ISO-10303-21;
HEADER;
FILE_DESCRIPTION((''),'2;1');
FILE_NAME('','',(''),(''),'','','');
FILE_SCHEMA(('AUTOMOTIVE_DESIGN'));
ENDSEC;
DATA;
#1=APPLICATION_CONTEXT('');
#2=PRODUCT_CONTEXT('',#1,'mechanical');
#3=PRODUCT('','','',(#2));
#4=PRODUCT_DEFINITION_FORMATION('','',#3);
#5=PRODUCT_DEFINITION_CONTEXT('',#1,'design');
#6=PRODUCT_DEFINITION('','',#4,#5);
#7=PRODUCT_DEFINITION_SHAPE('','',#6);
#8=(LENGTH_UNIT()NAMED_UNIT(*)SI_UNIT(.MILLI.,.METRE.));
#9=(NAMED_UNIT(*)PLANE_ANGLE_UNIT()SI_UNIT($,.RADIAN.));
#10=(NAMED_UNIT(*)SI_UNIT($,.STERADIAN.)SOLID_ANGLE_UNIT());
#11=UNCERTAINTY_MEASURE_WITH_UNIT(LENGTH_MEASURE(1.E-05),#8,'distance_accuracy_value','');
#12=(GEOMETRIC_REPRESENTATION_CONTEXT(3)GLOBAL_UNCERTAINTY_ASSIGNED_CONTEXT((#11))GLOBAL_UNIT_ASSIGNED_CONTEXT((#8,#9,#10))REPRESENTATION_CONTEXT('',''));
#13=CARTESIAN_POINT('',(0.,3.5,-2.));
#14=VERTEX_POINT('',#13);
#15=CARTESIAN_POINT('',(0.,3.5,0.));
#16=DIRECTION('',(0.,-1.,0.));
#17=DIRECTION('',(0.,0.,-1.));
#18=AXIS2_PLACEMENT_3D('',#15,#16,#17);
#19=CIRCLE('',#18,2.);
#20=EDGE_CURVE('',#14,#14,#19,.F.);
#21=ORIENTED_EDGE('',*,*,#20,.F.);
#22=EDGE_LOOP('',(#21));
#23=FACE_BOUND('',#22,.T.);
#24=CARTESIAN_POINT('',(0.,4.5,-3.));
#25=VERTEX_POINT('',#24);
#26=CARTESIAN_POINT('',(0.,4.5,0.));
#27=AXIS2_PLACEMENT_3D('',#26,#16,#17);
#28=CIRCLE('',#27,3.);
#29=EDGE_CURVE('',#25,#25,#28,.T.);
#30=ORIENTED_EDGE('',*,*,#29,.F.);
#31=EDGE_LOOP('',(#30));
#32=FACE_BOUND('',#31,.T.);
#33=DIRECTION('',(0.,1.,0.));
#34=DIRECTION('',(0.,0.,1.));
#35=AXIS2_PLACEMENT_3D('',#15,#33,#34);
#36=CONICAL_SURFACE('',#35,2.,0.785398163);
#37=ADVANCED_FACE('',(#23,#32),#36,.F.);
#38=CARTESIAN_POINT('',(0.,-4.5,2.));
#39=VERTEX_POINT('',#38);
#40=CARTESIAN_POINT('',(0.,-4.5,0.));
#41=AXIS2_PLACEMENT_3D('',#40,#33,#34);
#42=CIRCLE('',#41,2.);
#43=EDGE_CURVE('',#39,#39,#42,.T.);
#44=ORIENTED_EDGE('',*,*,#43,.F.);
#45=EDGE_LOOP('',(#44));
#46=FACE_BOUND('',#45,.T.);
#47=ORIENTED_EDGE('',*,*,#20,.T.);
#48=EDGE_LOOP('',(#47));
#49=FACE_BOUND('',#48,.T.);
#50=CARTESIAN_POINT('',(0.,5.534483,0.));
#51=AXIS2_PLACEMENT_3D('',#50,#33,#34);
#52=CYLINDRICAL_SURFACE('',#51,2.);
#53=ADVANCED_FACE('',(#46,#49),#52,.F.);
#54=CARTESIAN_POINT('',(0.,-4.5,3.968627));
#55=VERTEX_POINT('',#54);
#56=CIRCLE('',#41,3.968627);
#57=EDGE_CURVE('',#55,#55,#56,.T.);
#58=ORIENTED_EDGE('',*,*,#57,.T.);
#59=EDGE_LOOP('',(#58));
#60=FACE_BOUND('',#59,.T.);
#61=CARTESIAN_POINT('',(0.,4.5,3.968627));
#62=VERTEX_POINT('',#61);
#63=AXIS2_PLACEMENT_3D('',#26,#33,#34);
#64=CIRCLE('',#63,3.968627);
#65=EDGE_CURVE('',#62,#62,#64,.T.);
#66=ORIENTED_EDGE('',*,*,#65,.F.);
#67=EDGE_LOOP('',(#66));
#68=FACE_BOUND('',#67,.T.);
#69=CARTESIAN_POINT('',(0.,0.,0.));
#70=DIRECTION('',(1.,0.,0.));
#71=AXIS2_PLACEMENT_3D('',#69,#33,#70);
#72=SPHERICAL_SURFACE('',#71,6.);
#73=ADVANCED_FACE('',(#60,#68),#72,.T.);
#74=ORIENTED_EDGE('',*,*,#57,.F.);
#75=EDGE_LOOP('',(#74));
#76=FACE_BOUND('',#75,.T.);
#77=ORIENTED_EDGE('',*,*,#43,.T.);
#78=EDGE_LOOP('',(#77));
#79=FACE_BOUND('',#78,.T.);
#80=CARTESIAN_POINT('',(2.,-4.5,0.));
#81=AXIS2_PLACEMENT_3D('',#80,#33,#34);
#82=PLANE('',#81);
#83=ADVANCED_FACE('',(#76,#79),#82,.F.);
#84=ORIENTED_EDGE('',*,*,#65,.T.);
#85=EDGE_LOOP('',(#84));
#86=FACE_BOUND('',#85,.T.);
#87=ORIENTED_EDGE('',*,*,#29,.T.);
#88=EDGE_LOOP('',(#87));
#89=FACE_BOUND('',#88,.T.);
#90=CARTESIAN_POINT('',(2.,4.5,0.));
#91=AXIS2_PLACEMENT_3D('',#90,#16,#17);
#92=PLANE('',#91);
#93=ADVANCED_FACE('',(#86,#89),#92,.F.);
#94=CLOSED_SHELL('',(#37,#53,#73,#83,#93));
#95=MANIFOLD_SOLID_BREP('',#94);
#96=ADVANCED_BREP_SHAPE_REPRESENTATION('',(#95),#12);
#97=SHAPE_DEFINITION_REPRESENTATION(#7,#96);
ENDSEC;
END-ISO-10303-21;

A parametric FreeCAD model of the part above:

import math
import FreeCAD as App
import Part
import Sketcher

V = App.Vector


def edges_at(feature, points):
    """Names of the edges that pass closest to the given points."""
    edges = feature.Shape.Edges
    near = lambda p: min(range(len(edges)), key=lambda i: edges[i].distToShape(Part.Vertex(*p))[0])
    return sorted({f"Edge{near(p) + 1}" for p in points})

doc = App.newDocument("Part")
body = doc.addObject("PartDesign::Body", "Body")

# Sketch on XY plane
sketch1 = body.newObject("Sketcher::SketchObject", "Sketch")
sketch1.AttachmentSupport = (doc.getObject("XY_Plane"), [""])
sketch1.MapMode = "FlatFace"
sketch1.addGeometry([
    Part.LineSegment(V(2, -4.5, 0), V(3.968627, -4.5, 0)),
    Part.ArcOfCircle(Part.Circle(V(0, 0, 0), V(0, 0, 1), 6), math.radians(-48.590378), math.radians(48.590378)),
    Part.LineSegment(V(3.968627, 4.5, 0), V(2, 4.5, 0)),
    Part.LineSegment(V(2, 4.5, 0), V(2, -4.5, 0)),
], False)
sketch1.addConstraint([
    Sketcher.Constraint("Coincident", 0, 2, 1, 1),
    Sketcher.Constraint("Coincident", 1, 2, 2, 1),
    Sketcher.Constraint("Coincident", 2, 2, 3, 1),
    Sketcher.Constraint("Coincident", 3, 2, 0, 1),
    Sketcher.Constraint("Horizontal", 0),
    Sketcher.Constraint("Horizontal", 2),
    Sketcher.Constraint("Vertical", 3),
    Sketcher.Constraint("Coincident", 1, 3, -1, 1),
    Sketcher.Constraint("Vertical", 0, 2, 1, 2),
    Sketcher.Constraint("Radius", 1, 6.0),
    Sketcher.Constraint("DistanceY", 3, 2, 3, 1, 9.0),
    Sketcher.Constraint("DistanceX", -1, 1, 2, 2, 2.0),
])
revolution = body.newObject("PartDesign::Revolution", "Revolution")
revolution.Profile = sketch1
revolution.ReferenceAxis = (sketch1, ["V_Axis"])
revolution.Angle = 360
doc.recompute()

chamfer = body.newObject("PartDesign::Chamfer", "Chamfer")
chamfer.Base = (revolution, edges_at(revolution, [(-2, 4.5, 0)]))
chamfer.Size = 1

doc.recompute()
